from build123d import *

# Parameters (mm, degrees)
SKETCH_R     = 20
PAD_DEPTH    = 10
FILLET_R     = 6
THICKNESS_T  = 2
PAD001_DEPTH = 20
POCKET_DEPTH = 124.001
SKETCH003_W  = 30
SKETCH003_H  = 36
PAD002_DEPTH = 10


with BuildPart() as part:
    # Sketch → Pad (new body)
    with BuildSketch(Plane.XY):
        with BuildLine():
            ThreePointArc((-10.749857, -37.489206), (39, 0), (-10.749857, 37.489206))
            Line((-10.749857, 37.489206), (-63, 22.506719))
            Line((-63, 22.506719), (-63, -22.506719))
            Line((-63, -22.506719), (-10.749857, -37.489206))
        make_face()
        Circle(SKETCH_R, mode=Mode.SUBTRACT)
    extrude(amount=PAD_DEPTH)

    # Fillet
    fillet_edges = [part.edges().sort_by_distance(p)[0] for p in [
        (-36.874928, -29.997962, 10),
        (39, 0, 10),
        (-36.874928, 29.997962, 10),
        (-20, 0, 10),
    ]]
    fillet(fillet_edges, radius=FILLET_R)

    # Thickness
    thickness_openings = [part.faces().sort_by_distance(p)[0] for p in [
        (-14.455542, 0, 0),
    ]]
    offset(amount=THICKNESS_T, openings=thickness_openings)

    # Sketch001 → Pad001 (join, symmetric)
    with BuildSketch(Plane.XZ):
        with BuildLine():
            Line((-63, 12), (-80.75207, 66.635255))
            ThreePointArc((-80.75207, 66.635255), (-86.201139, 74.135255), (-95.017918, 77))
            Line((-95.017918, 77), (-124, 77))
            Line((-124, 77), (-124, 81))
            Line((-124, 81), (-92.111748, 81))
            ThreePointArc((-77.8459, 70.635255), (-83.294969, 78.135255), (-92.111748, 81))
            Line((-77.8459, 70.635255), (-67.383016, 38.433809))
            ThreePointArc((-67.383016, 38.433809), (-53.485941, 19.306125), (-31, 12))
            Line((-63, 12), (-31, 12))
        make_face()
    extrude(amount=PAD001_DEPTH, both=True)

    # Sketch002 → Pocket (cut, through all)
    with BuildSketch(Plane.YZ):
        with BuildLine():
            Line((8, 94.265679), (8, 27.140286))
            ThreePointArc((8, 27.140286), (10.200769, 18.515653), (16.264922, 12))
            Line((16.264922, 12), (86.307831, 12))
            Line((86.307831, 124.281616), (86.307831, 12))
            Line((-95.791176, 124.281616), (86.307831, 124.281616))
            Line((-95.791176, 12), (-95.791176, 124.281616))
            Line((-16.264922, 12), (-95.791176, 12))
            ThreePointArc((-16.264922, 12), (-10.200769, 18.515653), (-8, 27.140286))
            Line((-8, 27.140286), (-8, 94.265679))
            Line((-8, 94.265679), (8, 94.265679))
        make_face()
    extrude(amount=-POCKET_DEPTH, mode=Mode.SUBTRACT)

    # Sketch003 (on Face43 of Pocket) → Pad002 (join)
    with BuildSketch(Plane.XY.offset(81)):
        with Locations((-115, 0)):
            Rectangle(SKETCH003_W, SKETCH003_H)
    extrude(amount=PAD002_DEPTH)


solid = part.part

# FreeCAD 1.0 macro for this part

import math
import FreeCAD as App
import Part
import Sketcher
from FreeCAD import Vector
Q = App.Units.Quantity


def edges_at(feature, points):
    """Names of the edges that pass closest to the given points."""
    edges = feature.Shape.Edges
    near = lambda p: min(range(len(edges)), key=lambda i: edges[i].distToShape(Part.Vertex(*p))[0])
    return sorted({f"Edge{near(p) + 1}" for p in points})


def faces_at(feature, points):
    """Names of the faces that lie closest to the given points."""
    faces = feature.Shape.Faces
    near = lambda p: min(range(len(faces)), key=lambda i: faces[i].distToShape(Part.Vertex(*p))[0])
    return sorted({f"Face{near(p) + 1}" for p in points})


def add_polygon(sketch, points):
    """Adds a closed chain of lines whose ends are joined by coincident constraints."""
    first, n = sketch.GeometryCount, len(points)
    for a, b in zip(points, points[1:] + points[:1]):
        sketch.addGeometry(Part.LineSegment(App.Vector(*a, 0), App.Vector(*b, 0)), False)
    for i in range(n):
        sketch.addConstraint(Sketcher.Constraint("Coincident", first + i, 2, first + (i + 1) % n, 1))

doc = App.newDocument("Part")
params = doc.addObject("Spreadsheet::Sheet", "Params")
for row, (alias, value) in enumerate([
    ("sketch1_diameter", "40 mm"),
    ("sketch1_radius", "39 mm"),
    ("pad1_length", "10 mm"),
    ("fillet_radius", "6 mm"),
    ("thickness_wall", "2 mm"),
    ("sketch2_radius", "15 mm"),
    ("sketch2_width", "32 mm"),
    ("sketch2_height", "4 mm"),
    ("pad2_length", "40 mm"),
    ("sketch3_radius", "18.000002 mm"),
    ("sketch3_width", "16 mm"),
    ("pocket1_length", "124.001 mm"),
    ("sketch4_width", "30 mm"),
    ("sketch4_height", "36 mm"),
    ("pad3_length", "10 mm"),
], start=1):
    params.set(f"A{row}", alias)
    params.set(f"B{row}", "=" + value)
    params.setAlias(f"B{row}", alias)

body = doc.addObject("PartDesign::Body", "Body")

# Sketch on XY plane
sketch1 = doc.addObject("Sketcher::SketchObject", "Sketch")
body.addObject(sketch1)
sketch1.AttachmentSupport = (doc.XY_Plane, [""])
sketch1.MapMode = "FlatFace"
sketch1.addGeometry(Part.ArcOfCircle(Part.Circle(Vector(0, 0, 0), Vector(0, 0, 1), 39), math.radians(-106), math.radians(106)), False)
sketch1.addGeometry(Part.LineSegment(Vector(-10.749857, 37.489206, 0), Vector(-63, 22.506719, 0)), False)
sketch1.addGeometry(Part.LineSegment(Vector(-63, 22.506719, 0), Vector(-63, -22.506719, 0)), False)
sketch1.addGeometry(Part.LineSegment(Vector(-63, -22.506719, 0), Vector(-10.749857, -37.489206, 0)), False)
sketch1.addGeometry(Part.Circle(Vector(0, 0, 0), Vector(0, 0, 1), 20), False)
sketch1.addConstraint(Sketcher.Constraint("Tangent", 0, 2, 1, 1))
sketch1.addConstraint(Sketcher.Constraint("Coincident", 1, 2, 2, 1))
sketch1.addConstraint(Sketcher.Constraint("Coincident", 2, 2, 3, 1))
sketch1.addConstraint(Sketcher.Constraint("Tangent", 3, 2, 0, 1))
sketch1.addConstraint(Sketcher.Constraint("Vertical", 2))
sketch1.addConstraint(Sketcher.Constraint("Coincident", 0, 3, -1, 1))
sketch1.addConstraint(Sketcher.Constraint("Coincident", 4, 3, -1, 1))
sketch1.addConstraint(Sketcher.Constraint("Vertical", 0, 2, 3, 2))
sketch1.addConstraint(Sketcher.Constraint("Diameter", 4, Q("40 mm")))
sketch1.addConstraint(Sketcher.Constraint("Radius", 0, Q("39 mm")))
sketch1.addConstraint(Sketcher.Constraint("Angle", 1, Q("-164 deg")))
sketch1.addConstraint(Sketcher.Constraint("DistanceX", 1, 2, -1, 1, Q("63 mm")))
sketch1.setExpression("Constraints[8]", "Params.sketch1_diameter")
sketch1.setExpression("Constraints[9]", "Params.sketch1_radius")
pad1 = doc.addObject("PartDesign::Pad", "Pad")
body.addObject(pad1)
pad1.Profile = sketch1
pad1.setExpression("Length", "Params.pad1_length")
doc.recompute()

fillet = doc.addObject("PartDesign::Fillet", "Fillet")
body.addObject(fillet)
fillet.Base = (pad1, edges_at(pad1, [
    (-36.875, -29.998, 10),
    (39, 0, 10),
    (-36.875, 29.998, 10),
    (-20, 0, 10),
]))
fillet.setExpression("Radius", "Params.fillet_radius")
doc.recompute()

thickness = doc.addObject("PartDesign::Thickness", "Thickness")
body.addObject(thickness)
thickness.Base = (fillet, faces_at(fillet, [(-32.4, -15.6, 0)]))
thickness.setExpression("Value", "Params.thickness_wall")
thickness.Reversed = False
thickness.Join = "Arc"

# Sketch on XZ plane
sketch2 = doc.addObject("Sketcher::SketchObject", "Sketch001")
body.addObject(sketch2)
sketch2.AttachmentSupport = (doc.XZ_Plane, [""])
sketch2.MapMode = "FlatFace"
sketch2.addGeometry(Part.LineSegment(Vector(-80.75207, 66.635255, 0), Vector(-63, 12, 0)), False)
sketch2.addGeometry(Part.LineSegment(Vector(-63, 12, 0), Vector(-31, 12, 0)), False)
sketch2.addGeometry(Part.ArcOfCircle(Part.Circle(Vector(-31.000001, 50.255365, 0), Vector(0, 0, 1), 38.255365), math.radians(-162.000003), math.radians(-89.999999)), False)
sketch2.addGeometry(Part.LineSegment(Vector(-67.383016, 38.433809, 0), Vector(-77.8459, 70.635255, 0)), False)
sketch2.addGeometry(Part.ArcOfCircle(Part.Circle(Vector(-92.111748, 66, 0), Vector(0, 0, 1), 15), math.radians(18), math.radians(90.000001)), False)
sketch2.addGeometry(Part.LineSegment(Vector(-92.111748, 81, 0), Vector(-124, 81, 0)), False)
sketch2.addGeometry(Part.LineSegment(Vector(-124, 81, 0), Vector(-124, 77, 0)), False)
sketch2.addGeometry(Part.LineSegment(Vector(-124, 77, 0), Vector(-95.017918, 77, 0)), False)
sketch2.addGeometry(Part.ArcOfCircle(Part.Circle(Vector(-95.017918, 62, 0), Vector(0, 0, 1), 15), math.radians(18), math.radians(90.000001)), False)
sketch2.addConstraint(Sketcher.Constraint("Coincident", 0, 2, 1, 1))
sketch2.addConstraint(Sketcher.Constraint("Tangent", 1, 2, 2, 2))
sketch2.addConstraint(Sketcher.Constraint("Tangent", 2, 1, 3, 1))
sketch2.addConstraint(Sketcher.Constraint("Tangent", 3, 2, 4, 1))
sketch2.addConstraint(Sketcher.Constraint("Tangent", 4, 2, 5, 1))
sketch2.addConstraint(Sketcher.Constraint("Coincident", 5, 2, 6, 1))
sketch2.addConstraint(Sketcher.Constraint("Coincident", 6, 2, 7, 1))
sketch2.addConstraint(Sketcher.Constraint("Tangent", 7, 2, 8, 2))
sketch2.addConstraint(Sketcher.Constraint("Tangent", 8, 1, 0, 1))
sketch2.addConstraint(Sketcher.Constraint("Horizontal", 1))
sketch2.addConstraint(Sketcher.Constraint("Horizontal", 5))
sketch2.addConstraint(Sketcher.Constraint("Vertical", 6))
sketch2.addConstraint(Sketcher.Constraint("Horizontal", 7))
sketch2.addConstraint(Sketcher.Constraint("Equal", 4, 8))
sketch2.addConstraint(Sketcher.Constraint("Parallel", 0, 3))
sketch2.addConstraint(Sketcher.Constraint("Radius", 4, Q("15 mm")))
sketch2.addConstraint(Sketcher.Constraint("DistanceX", 1, 1, 1, 2, Q("32 mm")))
sketch2.addConstraint(Sketcher.Constraint("DistanceY", 6, 2, 6, 1, Q("4 mm")))
sketch2.addConstraint(Sketcher.Constraint("Angle", 0, Q("-72 deg")))
sketch2.addConstraint(Sketcher.Constraint("DistanceX", 2, 3, -1, 1, Q("31.000001 mm")))
sketch2.addConstraint(Sketcher.Constraint("DistanceY", -1, 1, 4, 3, Q("66 mm")))
sketch2.addConstraint(Sketcher.Constraint("DistanceY", -1, 1, 0, 2, Q("12 mm")))
sketch2.addConstraint(Sketcher.Constraint("DistanceX", 5, 2, -1, 1, Q("124 mm")))
sketch2.addConstraint(Sketcher.Constraint("Radius", 2, Q("38.255365 mm")))
sketch2.setExpression("Constraints[15]", "Params.sketch2_radius")
sketch2.setExpression("Constraints[16]", "Params.sketch2_width")
sketch2.setExpression("Constraints[17]", "Params.sketch2_height")
pad2 = doc.addObject("PartDesign::Pad", "Pad001")
body.addObject(pad2)
pad2.Profile = sketch2
pad2.setExpression("Length", "Params.pad2_length")
pad2.Midplane = True

# Sketch on YZ plane
sketch3 = doc.addObject("Sketcher::SketchObject", "Sketch002")
body.addObject(sketch3)
sketch3.AttachmentSupport = (doc.YZ_Plane, [""])
sketch3.MapMode = "FlatFace"
sketch3.addGeometry(Part.LineSegment(Vector(8, 94.265679, 0), Vector(8, 27.140286, 0)), False)
sketch3.addGeometry(Part.ArcOfCircle(Part.Circle(Vector(26.000002, 27.140287, 0), Vector(0, 0, 1), 18.000002), math.radians(-179.999998), math.radians(-122.740683)), False)
sketch3.addGeometry(Part.LineSegment(Vector(16.264922, 12, 0), Vector(86.307831, 12, 0)), False)
sketch3.addGeometry(Part.LineSegment(Vector(86.307831, 12, 0), Vector(86.307831, 124.281616, 0)), False)
sketch3.addGeometry(Part.LineSegment(Vector(86.307831, 124.281616, 0), Vector(-95.791176, 124.281616, 0)), False)
sketch3.addGeometry(Part.LineSegment(Vector(-95.791176, 124.281616, 0), Vector(-95.791176, 12, 0)), False)
sketch3.addGeometry(Part.LineSegment(Vector(-95.791176, 12, 0), Vector(-16.264922, 12, 0)), False)
sketch3.addGeometry(Part.ArcOfCircle(Part.Circle(Vector(-26.000002, 27.140287, 0), Vector(0, 0, 1), 18.000002), math.radians(-57.259317), math.radians(-0.000002)), False)
sketch3.addGeometry(Part.LineSegment(Vector(-8, 27.140286, 0), Vector(-8, 94.265679, 0)), False)
sketch3.addGeometry(Part.LineSegment(Vector(-8, 94.265679, 0), Vector(8, 94.265679, 0)), False)
sketch3.addConstraint(Sketcher.Constraint("Tangent", 0, 2, 1, 1))
sketch3.addConstraint(Sketcher.Constraint("Coincident", 1, 2, 2, 1))
sketch3.addConstraint(Sketcher.Constraint("Coincident", 2, 2, 3, 1))
sketch3.addConstraint(Sketcher.Constraint("Coincident", 3, 2, 4, 1))
sketch3.addConstraint(Sketcher.Constraint("Coincident", 4, 2, 5, 1))
sketch3.addConstraint(Sketcher.Constraint("Coincident", 5, 2, 6, 1))
sketch3.addConstraint(Sketcher.Constraint("Coincident", 6, 2, 7, 1))
sketch3.addConstraint(Sketcher.Constraint("Tangent", 7, 2, 8, 1))
sketch3.addConstraint(Sketcher.Constraint("Coincident", 8, 2, 9, 1))
sketch3.addConstraint(Sketcher.Constraint("Coincident", 9, 2, 0, 1))
sketch3.addConstraint(Sketcher.Constraint("Vertical", 0))
sketch3.addConstraint(Sketcher.Constraint("Horizontal", 2))
sketch3.addConstraint(Sketcher.Constraint("Vertical", 3))
sketch3.addConstraint(Sketcher.Constraint("Horizontal", 4))
sketch3.addConstraint(Sketcher.Constraint("Vertical", 5))
sketch3.addConstraint(Sketcher.Constraint("Horizontal", 6))
sketch3.addConstraint(Sketcher.Constraint("Vertical", 8))
sketch3.addConstraint(Sketcher.Constraint("Horizontal", 9))
sketch3.addConstraint(Sketcher.Constraint("Equal", 1, 7))
sketch3.addConstraint(Sketcher.Constraint("Symmetric", 1, 3, 7, 3, -2))
sketch3.addConstraint(Sketcher.Constraint("Horizontal", 2, 2, 5, 2))
sketch3.addConstraint(Sketcher.Constraint("Radius", 1, Q("18.000002 mm")))
sketch3.addConstraint(Sketcher.Constraint("DistanceX", 9, 1, 9, 2, Q("16 mm")))
sketch3.addConstraint(Sketcher.Constraint("DistanceY", -1, 1, 1, 2, Q("12 mm")))
sketch3.addConstraint(Sketcher.Constraint("DistanceX", 2, 1, 2, 2, Q("70.042909 mm")))
sketch3.addConstraint(Sketcher.Constraint("DistanceX", 4, 2, 4, 1, Q("182.099007 mm")))
sketch3.addConstraint(Sketcher.Constraint("DistanceX", 6, 1, 6, 2, Q("79.526254 mm")))
sketch3.addConstraint(Sketcher.Constraint("DistanceY", 0, 2, 0, 1, Q("67.125393 mm")))
sketch3.addConstraint(Sketcher.Constraint("DistanceY", 3, 1, 3, 2, Q("112.281616 mm")))
sketch3.setExpression("Constraints[21]", "Params.sketch3_radius")
sketch3.setExpression("Constraints[22]", "Params.sketch3_width")
pocket1 = doc.addObject("PartDesign::Pocket", "Pocket")
body.addObject(pocket1)
pocket1.Profile = sketch3
pocket1.setExpression("Length", "Params.pocket1_length")

# Sketch on XY plane
sketch4 = doc.addObject("Sketcher::SketchObject", "Sketch003")
body.addObject(sketch4)
sketch4.AttachmentSupport = (doc.XY_Plane, [""])
sketch4.MapMode = "FlatFace"
sketch4.AttachmentOffset = App.Placement(Vector(0, 0, 81), App.Rotation())
add_polygon(sketch4, [(-130, 18), (-130, -18), (-100, -18), (-100, 18)])  # lines 0-3
sketch4.addConstraint(Sketcher.Constraint("Vertical", 0))
sketch4.addConstraint(Sketcher.Constraint("Horizontal", 1))
sketch4.addConstraint(Sketcher.Constraint("Vertical", 2))
sketch4.addConstraint(Sketcher.Constraint("Horizontal", 3))
sketch4.addConstraint(Sketcher.Constraint("DistanceX", 1, 1, 1, 2, Q("30 mm")))
sketch4.addConstraint(Sketcher.Constraint("DistanceY", 0, 2, 0, 1, Q("36 mm")))
sketch4.addConstraint(Sketcher.Constraint("DistanceX", 0, 2, -1, 1, Q("130 mm")))
sketch4.addConstraint(Sketcher.Constraint("DistanceY", 0, 2, -1, 1, Q("18 mm")))
sketch4.setExpression("Constraints[8]", "Params.sketch4_width")
sketch4.setExpression("Constraints[9]", "Params.sketch4_height")
pad3 = doc.addObject("PartDesign::Pad", "Pad002")
body.addObject(pad3)
pad3.Profile = sketch4
pad3.setExpression("Length", "Params.pad3_length")

doc.recompute()
